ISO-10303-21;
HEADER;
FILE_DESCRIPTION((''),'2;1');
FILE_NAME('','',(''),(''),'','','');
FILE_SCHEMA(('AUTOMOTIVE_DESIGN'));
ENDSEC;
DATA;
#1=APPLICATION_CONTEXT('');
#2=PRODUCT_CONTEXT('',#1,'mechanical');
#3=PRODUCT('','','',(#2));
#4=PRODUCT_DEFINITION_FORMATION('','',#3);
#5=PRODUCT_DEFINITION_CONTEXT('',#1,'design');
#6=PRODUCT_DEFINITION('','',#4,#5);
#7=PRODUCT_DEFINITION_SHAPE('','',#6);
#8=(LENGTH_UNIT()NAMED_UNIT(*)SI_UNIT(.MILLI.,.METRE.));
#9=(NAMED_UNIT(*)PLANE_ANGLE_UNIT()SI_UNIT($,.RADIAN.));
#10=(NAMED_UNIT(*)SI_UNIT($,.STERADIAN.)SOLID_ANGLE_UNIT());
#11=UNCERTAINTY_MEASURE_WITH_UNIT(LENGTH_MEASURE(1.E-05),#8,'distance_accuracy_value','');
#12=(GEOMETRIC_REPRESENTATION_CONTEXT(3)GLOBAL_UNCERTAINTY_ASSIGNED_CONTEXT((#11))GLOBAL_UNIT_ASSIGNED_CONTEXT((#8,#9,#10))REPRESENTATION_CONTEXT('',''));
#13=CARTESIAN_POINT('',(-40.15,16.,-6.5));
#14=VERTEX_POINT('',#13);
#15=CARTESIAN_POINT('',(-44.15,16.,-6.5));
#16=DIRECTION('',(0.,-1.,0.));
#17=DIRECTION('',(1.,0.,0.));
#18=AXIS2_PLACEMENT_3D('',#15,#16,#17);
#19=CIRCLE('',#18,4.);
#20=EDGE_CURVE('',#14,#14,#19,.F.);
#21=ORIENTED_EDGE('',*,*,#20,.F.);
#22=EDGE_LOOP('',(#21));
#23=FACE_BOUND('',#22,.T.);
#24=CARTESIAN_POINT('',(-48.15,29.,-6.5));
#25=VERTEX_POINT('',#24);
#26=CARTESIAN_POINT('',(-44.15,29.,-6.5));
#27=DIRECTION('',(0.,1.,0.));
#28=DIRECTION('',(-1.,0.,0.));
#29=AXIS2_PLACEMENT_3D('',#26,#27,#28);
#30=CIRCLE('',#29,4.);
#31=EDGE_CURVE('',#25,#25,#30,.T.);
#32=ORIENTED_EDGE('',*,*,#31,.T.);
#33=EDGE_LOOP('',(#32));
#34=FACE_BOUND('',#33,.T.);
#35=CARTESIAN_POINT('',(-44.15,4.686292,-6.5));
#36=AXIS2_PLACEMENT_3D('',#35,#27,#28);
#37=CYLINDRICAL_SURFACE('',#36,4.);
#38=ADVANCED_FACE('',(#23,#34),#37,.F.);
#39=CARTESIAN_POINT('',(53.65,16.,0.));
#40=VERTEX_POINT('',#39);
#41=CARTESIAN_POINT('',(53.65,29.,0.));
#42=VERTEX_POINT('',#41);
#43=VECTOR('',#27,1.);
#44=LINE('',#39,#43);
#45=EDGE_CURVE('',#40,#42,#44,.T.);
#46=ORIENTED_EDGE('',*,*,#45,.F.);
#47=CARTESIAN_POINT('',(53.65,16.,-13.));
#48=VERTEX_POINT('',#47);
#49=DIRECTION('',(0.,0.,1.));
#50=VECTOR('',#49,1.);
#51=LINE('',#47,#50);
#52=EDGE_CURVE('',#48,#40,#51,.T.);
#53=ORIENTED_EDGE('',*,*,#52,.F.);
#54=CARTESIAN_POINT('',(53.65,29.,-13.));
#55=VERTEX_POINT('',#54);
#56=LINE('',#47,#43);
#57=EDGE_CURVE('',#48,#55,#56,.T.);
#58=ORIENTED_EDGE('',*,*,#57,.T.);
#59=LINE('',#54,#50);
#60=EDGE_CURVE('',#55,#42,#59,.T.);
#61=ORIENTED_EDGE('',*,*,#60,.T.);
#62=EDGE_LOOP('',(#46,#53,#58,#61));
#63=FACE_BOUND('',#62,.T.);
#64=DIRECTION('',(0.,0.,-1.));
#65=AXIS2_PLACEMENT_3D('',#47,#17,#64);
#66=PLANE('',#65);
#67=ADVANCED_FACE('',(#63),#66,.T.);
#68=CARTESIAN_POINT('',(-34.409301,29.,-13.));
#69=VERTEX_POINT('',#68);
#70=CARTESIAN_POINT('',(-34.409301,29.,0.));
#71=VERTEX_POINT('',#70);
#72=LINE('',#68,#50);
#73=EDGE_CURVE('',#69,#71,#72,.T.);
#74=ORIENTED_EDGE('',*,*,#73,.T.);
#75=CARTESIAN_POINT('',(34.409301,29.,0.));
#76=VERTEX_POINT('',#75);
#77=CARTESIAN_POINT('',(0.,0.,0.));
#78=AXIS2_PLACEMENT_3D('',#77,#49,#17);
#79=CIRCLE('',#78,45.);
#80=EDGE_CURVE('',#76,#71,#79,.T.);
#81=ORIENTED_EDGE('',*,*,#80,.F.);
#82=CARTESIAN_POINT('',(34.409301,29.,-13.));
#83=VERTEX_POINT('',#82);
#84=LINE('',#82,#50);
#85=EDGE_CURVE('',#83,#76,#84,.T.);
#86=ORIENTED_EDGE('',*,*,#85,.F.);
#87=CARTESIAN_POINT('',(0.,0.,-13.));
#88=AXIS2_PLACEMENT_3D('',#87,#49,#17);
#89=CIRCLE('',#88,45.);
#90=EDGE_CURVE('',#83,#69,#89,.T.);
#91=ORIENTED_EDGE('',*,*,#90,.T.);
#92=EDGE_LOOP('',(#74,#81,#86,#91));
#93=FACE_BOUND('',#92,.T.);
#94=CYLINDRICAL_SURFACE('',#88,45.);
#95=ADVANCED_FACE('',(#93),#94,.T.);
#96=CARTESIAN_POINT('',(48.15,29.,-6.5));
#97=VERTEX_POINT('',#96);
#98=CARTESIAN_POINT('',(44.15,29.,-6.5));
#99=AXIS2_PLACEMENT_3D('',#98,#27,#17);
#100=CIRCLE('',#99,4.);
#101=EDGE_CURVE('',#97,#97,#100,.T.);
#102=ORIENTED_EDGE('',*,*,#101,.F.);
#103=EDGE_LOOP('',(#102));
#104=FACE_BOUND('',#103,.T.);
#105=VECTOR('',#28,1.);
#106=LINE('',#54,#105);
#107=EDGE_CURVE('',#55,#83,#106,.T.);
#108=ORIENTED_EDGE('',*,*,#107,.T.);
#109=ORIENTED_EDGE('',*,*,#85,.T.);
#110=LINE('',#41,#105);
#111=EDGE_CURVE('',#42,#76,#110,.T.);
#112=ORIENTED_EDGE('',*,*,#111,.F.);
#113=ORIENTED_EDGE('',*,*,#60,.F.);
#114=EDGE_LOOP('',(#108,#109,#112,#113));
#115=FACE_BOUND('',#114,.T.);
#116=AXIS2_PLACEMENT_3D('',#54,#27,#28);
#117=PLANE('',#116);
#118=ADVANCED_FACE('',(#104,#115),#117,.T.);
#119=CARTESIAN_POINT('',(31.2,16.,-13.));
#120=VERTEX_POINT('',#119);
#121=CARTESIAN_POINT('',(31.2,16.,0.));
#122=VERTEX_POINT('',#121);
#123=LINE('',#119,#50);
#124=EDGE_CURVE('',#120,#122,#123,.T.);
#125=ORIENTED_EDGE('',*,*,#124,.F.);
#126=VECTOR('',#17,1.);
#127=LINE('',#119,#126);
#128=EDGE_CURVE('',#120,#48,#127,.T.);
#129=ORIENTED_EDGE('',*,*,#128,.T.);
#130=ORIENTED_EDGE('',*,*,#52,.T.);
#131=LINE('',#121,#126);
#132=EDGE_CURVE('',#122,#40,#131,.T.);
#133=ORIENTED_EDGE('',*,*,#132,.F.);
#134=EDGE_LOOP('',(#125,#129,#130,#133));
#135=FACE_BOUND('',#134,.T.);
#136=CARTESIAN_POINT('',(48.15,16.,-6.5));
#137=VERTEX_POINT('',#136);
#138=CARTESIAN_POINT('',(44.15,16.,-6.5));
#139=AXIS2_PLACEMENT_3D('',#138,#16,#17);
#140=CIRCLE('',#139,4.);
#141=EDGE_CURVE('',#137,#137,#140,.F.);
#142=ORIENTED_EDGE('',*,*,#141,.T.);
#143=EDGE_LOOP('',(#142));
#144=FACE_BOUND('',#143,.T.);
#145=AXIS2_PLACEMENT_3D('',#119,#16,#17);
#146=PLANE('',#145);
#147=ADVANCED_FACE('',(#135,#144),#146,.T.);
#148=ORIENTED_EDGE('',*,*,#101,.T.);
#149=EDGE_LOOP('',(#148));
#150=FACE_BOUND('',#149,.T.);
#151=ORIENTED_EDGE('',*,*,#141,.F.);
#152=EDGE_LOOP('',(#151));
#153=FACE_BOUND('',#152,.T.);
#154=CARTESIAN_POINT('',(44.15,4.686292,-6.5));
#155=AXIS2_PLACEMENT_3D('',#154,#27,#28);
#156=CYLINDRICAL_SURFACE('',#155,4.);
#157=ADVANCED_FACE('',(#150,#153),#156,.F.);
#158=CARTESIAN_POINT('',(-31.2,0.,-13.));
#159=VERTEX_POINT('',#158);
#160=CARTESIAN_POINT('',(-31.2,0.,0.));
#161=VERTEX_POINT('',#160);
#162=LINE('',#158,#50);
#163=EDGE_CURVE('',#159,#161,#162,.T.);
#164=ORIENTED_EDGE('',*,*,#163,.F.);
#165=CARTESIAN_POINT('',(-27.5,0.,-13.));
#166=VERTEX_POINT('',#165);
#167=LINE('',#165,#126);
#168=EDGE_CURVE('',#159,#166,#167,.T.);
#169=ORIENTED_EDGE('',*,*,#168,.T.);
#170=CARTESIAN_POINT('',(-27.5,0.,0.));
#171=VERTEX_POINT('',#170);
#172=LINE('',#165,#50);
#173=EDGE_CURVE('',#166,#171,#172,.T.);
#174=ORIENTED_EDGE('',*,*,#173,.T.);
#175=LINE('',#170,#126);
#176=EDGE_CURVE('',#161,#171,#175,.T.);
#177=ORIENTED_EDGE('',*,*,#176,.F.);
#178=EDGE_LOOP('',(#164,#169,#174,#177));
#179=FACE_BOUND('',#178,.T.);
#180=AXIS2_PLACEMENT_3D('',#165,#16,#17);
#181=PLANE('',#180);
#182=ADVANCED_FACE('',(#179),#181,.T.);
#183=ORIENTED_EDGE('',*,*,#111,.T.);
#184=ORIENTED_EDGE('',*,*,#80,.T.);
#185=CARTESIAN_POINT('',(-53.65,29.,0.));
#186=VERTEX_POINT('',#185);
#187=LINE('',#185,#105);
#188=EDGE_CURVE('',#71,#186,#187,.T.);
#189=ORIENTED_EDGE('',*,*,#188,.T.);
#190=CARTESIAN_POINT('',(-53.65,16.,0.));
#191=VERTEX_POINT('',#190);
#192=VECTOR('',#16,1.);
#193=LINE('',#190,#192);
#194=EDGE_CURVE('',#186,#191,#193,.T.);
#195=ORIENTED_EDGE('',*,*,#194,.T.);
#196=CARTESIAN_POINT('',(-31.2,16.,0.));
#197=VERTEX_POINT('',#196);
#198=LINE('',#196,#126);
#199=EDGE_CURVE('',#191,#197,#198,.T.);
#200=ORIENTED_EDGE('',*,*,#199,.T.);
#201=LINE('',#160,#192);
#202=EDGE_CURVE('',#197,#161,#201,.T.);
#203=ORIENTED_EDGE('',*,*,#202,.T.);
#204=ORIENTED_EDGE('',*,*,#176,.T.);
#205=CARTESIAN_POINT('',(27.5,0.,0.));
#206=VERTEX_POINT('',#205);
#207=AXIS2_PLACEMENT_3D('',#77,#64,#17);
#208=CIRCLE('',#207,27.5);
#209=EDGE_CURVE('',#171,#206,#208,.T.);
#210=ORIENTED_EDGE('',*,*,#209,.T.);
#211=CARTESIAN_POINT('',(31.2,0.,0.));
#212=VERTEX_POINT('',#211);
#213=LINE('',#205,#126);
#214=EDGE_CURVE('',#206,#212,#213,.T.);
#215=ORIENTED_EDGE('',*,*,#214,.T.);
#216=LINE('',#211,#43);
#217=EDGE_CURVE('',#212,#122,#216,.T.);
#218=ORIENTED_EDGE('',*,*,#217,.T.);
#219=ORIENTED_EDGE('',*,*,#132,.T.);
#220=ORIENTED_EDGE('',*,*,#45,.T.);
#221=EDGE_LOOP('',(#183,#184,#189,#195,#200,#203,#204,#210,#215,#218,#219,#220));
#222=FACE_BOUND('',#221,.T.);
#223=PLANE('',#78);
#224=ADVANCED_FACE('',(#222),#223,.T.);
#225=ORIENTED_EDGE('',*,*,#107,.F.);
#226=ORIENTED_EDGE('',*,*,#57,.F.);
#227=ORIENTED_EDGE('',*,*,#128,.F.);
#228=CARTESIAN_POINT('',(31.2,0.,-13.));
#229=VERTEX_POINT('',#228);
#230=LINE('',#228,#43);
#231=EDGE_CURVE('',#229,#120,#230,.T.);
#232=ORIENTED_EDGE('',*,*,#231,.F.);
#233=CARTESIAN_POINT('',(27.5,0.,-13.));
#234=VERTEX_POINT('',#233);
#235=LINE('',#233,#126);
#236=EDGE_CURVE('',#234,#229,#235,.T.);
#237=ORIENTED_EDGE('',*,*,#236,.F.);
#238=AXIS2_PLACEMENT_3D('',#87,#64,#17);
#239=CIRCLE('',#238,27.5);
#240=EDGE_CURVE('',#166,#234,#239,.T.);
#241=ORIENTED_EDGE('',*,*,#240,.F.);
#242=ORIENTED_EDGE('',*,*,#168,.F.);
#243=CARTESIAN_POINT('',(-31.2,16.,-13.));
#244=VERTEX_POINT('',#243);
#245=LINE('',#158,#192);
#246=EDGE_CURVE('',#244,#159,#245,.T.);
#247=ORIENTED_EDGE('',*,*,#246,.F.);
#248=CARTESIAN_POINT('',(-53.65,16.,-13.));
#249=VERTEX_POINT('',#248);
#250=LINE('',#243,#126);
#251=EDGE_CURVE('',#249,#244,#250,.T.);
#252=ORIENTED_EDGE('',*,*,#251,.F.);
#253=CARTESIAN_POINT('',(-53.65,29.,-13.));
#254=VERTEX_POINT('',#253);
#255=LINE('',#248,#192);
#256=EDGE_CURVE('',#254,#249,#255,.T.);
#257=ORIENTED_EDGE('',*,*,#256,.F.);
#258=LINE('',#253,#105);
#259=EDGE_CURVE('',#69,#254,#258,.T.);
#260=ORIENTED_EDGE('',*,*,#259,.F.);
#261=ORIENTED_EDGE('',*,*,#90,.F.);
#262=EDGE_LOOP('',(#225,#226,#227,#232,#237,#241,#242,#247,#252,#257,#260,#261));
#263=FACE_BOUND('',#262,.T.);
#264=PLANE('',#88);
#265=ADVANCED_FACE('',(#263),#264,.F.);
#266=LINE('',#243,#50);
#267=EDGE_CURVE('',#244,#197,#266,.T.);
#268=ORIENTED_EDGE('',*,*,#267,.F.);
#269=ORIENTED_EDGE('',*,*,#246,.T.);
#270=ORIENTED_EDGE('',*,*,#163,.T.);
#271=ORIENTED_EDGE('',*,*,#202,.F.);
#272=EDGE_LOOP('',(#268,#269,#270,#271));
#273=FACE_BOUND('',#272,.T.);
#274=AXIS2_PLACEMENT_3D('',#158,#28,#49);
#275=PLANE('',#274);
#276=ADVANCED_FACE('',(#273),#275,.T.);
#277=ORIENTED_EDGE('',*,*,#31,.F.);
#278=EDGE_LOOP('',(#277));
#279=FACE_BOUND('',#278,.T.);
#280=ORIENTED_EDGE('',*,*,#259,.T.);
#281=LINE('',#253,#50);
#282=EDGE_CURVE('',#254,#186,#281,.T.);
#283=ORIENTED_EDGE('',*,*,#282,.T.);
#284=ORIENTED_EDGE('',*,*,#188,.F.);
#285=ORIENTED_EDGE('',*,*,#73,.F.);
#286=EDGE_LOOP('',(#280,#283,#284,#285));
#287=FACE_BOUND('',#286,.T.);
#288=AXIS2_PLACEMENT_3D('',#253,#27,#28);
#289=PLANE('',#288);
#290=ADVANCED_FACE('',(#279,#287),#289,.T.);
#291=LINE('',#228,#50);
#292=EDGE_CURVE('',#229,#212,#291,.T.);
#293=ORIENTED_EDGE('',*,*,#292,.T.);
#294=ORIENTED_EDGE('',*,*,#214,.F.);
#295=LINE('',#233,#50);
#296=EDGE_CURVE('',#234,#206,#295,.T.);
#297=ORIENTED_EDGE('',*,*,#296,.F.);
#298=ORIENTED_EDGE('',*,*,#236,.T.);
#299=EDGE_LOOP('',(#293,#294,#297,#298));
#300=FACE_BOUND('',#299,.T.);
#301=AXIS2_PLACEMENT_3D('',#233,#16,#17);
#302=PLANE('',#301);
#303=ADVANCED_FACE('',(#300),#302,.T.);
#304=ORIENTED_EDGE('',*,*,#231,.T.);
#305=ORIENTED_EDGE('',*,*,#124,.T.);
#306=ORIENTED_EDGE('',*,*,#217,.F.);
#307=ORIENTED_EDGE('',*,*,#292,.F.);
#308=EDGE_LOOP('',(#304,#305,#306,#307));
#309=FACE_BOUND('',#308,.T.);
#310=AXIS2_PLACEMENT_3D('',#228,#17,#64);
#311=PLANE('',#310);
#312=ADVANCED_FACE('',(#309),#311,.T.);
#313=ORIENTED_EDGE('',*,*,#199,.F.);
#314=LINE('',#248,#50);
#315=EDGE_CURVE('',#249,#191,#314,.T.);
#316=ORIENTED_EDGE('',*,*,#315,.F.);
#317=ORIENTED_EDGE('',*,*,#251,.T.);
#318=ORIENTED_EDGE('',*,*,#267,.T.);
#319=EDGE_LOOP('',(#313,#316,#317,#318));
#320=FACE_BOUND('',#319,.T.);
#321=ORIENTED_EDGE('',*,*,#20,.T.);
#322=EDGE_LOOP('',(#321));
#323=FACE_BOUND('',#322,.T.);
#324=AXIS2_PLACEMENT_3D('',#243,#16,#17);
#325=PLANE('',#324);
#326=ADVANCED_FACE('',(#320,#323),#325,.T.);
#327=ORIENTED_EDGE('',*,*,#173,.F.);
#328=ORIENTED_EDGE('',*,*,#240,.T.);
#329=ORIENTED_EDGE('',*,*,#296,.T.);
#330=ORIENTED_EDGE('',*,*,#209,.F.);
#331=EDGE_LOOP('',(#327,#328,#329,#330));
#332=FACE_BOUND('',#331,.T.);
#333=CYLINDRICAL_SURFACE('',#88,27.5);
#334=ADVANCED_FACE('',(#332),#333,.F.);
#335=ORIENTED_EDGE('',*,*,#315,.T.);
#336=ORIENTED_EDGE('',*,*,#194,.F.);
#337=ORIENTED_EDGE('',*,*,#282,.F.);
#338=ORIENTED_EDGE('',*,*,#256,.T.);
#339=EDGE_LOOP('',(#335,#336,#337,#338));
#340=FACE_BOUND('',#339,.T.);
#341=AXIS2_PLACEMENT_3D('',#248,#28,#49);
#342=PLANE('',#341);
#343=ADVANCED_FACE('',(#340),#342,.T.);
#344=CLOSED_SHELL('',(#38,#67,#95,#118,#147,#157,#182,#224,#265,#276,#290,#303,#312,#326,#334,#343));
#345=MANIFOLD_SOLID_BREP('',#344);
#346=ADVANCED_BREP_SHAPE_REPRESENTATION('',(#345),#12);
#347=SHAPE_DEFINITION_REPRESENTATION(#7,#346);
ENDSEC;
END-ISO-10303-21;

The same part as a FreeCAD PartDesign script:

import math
import FreeCAD as App
import Part
import Sketcher

V = App.Vector

doc = App.newDocument("Part")
body = doc.addObject("PartDesign::Body", "Body")

# Sketch on XY plane
sketch1 = doc.addObject("Sketcher::SketchObject", "Sketch")
body.addObject(sketch1)
sketch1.AttachmentSupport = (doc.XY_Plane, [""])
sketch1.MapMode = "FlatFace"
sketch1.addGeometry(Part.LineSegment(V(-31.2, 0, 0), V(-27.5, 0, 0)), False)
sketch1.addGeometry(Part.ArcOfCircle(Part.Circle(V(0, 0, 0), V(0, 0, 1), 27.5), math.radians(0), math.radians(180)), False)
sketch1.addGeometry(Part.LineSegment(V(27.5, 0, 0), V(31.2, 0, 0)), False)
sketch1.addGeometry(Part.LineSegment(V(31.2, 0, 0), V(31.2, 16, 0)), False)
sketch1.addGeometry(Part.LineSegment(V(31.2, 16, 0), V(53.6, 16, 0)), False)
sketch1.addGeometry(Part.LineSegment(V(53.6, 16, 0), V(53.6, 29, 0)), False)
sketch1.addGeometry(Part.LineSegment(V(53.6, 29, 0), V(34.4, 29, 0)), False)
sketch1.addGeometry(Part.ArcOfCircle(Part.Circle(V(0, 0, 0), V(0, 0, 1), 45), math.radians(40), math.radians(140)), False)
sketch1.addGeometry(Part.LineSegment(V(-34.4, 29, 0), V(-53.6, 29, 0)), False)
sketch1.addGeometry(Part.LineSegment(V(-53.6, 29, 0), V(-53.6, 16, 0)), False)
sketch1.addGeometry(Part.LineSegment(V(-53.6, 16, 0), V(-31.2, 16, 0)), False)
sketch1.addGeometry(Part.LineSegment(V(-31.2, 16, 0), V(-31.2, 0, 0)), False)
sketch1.addConstraint(Sketcher.Constraint("Coincident", 0, 2, 1, 2))
sketch1.addConstraint(Sketcher.Constraint("Coincident", 1, 1, 2, 1))
sketch1.addConstraint(Sketcher.Constraint("Coincident", 2, 2, 3, 1))
sketch1.addConstraint(Sketcher.Constraint("Coincident", 3, 2, 4, 1))
sketch1.addConstraint(Sketcher.Constraint("Coincident", 4, 2, 5, 1))
sketch1.addConstraint(Sketcher.Constraint("Coincident", 5, 2, 6, 1))
sketch1.addConstraint(Sketcher.Constraint("Coincident", 6, 2, 7, 1))
sketch1.addConstraint(Sketcher.Constraint("Coincident", 7, 2, 8, 1))
sketch1.addConstraint(Sketcher.Constraint("Coincident", 8, 2, 9, 1))
sketch1.addConstraint(Sketcher.Constraint("Coincident", 9, 2, 10, 1))
sketch1.addConstraint(Sketcher.Constraint("Coincident", 10, 2, 11, 1))
sketch1.addConstraint(Sketcher.Constraint("Coincident", 11, 2, 0, 1))
sketch1.addConstraint(Sketcher.Constraint("Horizontal", 0))
sketch1.addConstraint(Sketcher.Constraint("Horizontal", 2))
sketch1.addConstraint(Sketcher.Constraint("Vertical", 3))
sketch1.addConstraint(Sketcher.Constraint("Horizontal", 4))
sketch1.addConstraint(Sketcher.Constraint("Vertical", 5))
sketch1.addConstraint(Sketcher.Constraint("Horizontal", 6))
sketch1.addConstraint(Sketcher.Constraint("Horizontal", 8))
sketch1.addConstraint(Sketcher.Constraint("Vertical", 9))
sketch1.addConstraint(Sketcher.Constraint("Horizontal", 10))
sketch1.addConstraint(Sketcher.Constraint("Vertical", 11))
sketch1.addConstraint(Sketcher.Constraint("Coincident", 1, 3, -1, 1))
sketch1.addConstraint(Sketcher.Constraint("Coincident", 7, 3, -1, 1))
sketch1.addConstraint(Sketcher.Constraint("Symmetric", 2, 2, 11, 2, -1, 1))
sketch1.addConstraint(Sketcher.Constraint("Symmetric", 5, 2, 8, 2, -2))
sketch1.addConstraint(Sketcher.Constraint("PointOnObject", 0, 2, -1))
sketch1.addConstraint(Sketcher.Constraint("Horizontal", 4, 2, 9, 2))
sketch1.addConstraint(Sketcher.Constraint("Radius", 7, 45.0))
sketch1.addConstraint(Sketcher.Constraint("Radius", 1, 27.5))
sketch1.addConstraint(Sketcher.Constraint("DistanceY", 3, 1, 3, 2, 16.0))
sketch1.addConstraint(Sketcher.Constraint("DistanceY", 5, 1, 5, 2, 13.0))
sketch1.addConstraint(Sketcher.Constraint("DistanceX", 0, 1, 0, 2, 3.7))
sketch1.addConstraint(Sketcher.Constraint("DistanceX", 4, 1, 4, 2, 22.45))
pad1 = doc.addObject("PartDesign::Pad", "Pad")
body.addObject(pad1)
pad1.Profile = sketch1
pad1.Length = 13
pad1.Reversed = True

# Sketch on XZ plane
sketch2 = doc.addObject("Sketcher::SketchObject", "Sketch001")
body.addObject(sketch2)
sketch2.AttachmentSupport = (doc.XZ_Plane, [""])
sketch2.MapMode = "FlatFace"
sketch2.AttachmentOffset = App.Placement(V(0, 0, -29), App.Rotation())
sketch2.addGeometry(Part.Circle(V(-44.1, -6.5, 0), V(0, 0, 1), 4), False)
sketch2.addGeometry(Part.Circle(V(44.1, -6.5, 0), V(0, 0, 1), 4), False)
sketch2.addConstraint(Sketcher.Constraint("Equal", 0, 1))
sketch2.addConstraint(Sketcher.Constraint("Symmetric", 0, 3, 1, 3, -2))
sketch2.addConstraint(Sketcher.Constraint("Diameter", 0, 8.0))
sketch2.addConstraint(Sketcher.Constraint("DistanceY", 0, 3, -1, 1, 6.5))
sketch2.addConstraint(Sketcher.Constraint("DistanceX", 0, 3, 1, 3, 88.3))
pocket1 = doc.addObject("PartDesign::Pocket", "Pocket")
body.addObject(pocket1)
pocket1.Profile = sketch2
pocket1.Length = 13
pocket1.Reversed = True

doc.recompute()
